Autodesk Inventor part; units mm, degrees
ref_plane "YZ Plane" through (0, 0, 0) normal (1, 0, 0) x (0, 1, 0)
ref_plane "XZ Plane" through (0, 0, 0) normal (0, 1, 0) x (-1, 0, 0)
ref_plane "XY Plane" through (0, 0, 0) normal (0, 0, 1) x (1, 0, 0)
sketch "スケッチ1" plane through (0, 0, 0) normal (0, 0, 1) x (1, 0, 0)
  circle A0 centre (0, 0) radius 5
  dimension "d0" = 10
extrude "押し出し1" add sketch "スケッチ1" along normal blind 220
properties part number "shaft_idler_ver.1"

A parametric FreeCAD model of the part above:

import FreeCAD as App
import Part
import Sketcher
Q = App.Units.Quantity

doc = App.newDocument("Part")
body = doc.addObject("PartDesign::Body", "Body")

sketch1 = doc.addObject("Sketcher::SketchObject", "Sketch")
body.addObject(sketch1)
sketch1.AttachmentSupport = (doc.XY_Plane, [""])
sketch1.MapMode = "FlatFace"
sketch1.addGeometry(Part.Circle(App.Vector(0, 0, 0), App.Vector(0, 0, 1), 5), False)
sketch1.addConstraint(Sketcher.Constraint("Coincident", 0, 3, -1, 1))
sketch1.addConstraint(Sketcher.Constraint("Diameter", 0, Q("10 mm")))
pad1 = doc.addObject("PartDesign::Pad", "Pad")
body.addObject(pad1)
pad1.Profile = sketch1
pad1.Length = 220

doc.recompute()
